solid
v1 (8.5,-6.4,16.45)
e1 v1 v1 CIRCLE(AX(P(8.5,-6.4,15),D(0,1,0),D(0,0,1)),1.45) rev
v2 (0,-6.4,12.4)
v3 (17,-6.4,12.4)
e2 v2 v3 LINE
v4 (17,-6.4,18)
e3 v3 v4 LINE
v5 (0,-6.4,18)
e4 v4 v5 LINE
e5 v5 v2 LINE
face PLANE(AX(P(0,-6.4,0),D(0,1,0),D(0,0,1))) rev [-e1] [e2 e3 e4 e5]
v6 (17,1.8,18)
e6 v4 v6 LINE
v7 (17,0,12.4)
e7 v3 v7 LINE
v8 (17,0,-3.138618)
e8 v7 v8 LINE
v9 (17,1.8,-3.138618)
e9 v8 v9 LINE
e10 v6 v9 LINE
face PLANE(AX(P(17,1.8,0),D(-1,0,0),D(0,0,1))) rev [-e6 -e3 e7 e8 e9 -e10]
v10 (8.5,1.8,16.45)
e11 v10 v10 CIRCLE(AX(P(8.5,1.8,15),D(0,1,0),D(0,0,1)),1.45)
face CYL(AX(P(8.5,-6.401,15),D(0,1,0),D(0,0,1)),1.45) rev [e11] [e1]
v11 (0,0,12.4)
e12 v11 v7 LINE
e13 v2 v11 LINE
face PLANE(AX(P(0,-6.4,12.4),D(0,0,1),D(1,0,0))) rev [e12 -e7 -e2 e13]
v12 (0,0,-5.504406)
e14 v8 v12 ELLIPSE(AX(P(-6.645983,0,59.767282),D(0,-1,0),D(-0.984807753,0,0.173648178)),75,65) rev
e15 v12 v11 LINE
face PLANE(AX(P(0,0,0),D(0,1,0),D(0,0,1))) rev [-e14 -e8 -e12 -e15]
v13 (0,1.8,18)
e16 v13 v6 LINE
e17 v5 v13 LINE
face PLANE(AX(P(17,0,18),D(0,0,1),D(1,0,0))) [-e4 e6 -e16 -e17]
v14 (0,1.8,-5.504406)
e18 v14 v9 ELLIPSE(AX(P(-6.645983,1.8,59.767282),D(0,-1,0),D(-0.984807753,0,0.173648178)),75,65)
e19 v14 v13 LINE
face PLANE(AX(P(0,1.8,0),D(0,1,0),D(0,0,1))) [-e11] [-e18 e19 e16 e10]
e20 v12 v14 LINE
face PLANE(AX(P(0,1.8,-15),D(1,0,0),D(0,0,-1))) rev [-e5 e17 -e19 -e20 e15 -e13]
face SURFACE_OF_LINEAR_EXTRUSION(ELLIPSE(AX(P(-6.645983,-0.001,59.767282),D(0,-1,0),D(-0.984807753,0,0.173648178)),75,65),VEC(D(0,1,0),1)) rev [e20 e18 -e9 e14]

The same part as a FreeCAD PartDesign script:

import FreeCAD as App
import Part
import Sketcher

V = App.Vector
Q = App.Units.Quantity


def add_polygon(sketch, points):
    """Adds a closed chain of lines whose ends are joined by coincident constraints."""
    first, n = sketch.GeometryCount, len(points)
    for a, b in zip(points, points[1:] + points[:1]):
        sketch.addGeometry(Part.LineSegment(App.Vector(*a, 0), App.Vector(*b, 0)), False)
    for i in range(n):
        sketch.addConstraint(Sketcher.Constraint("Coincident", first + i, 2, first + (i + 1) % n, 1))

doc = App.newDocument("Part")
body = doc.addObject("PartDesign::Body", "Body")

sketch1 = body.newObject("Sketcher::SketchObject", "Sketch")
sketch1.AttachmentSupport = (doc.getObject("XZ_Plane"), [""])
sketch1.MapMode = "FlatFace"
add_polygon(sketch1, [(0, -15), (0, 0), (17, 0), (17, -10)])
sketch1.addConstraint(Sketcher.Constraint("Vertical", 0))
sketch1.addConstraint(Sketcher.Constraint("Horizontal", 1))
sketch1.addConstraint(Sketcher.Constraint("Vertical", 2))
sketch1.addConstraint(Sketcher.Constraint("Coincident", 0, 2, -1, 1))
sketch1.addConstraint(Sketcher.Constraint("DistanceX", 1, 1, 1, 2, Q("17 mm")))
sketch1.addConstraint(Sketcher.Constraint("DistanceY", 0, 1, 0, 2, Q("15 mm")))
sketch1.addConstraint(Sketcher.Constraint("DistanceY", 2, 2, 2, 1, Q("10 mm")))
pad1 = body.newObject("PartDesign::Pad", "Pad")
pad1.Profile = sketch1
pad1.Length = 1.8
pad1.Reversed = True

sketch2 = body.newObject("Sketcher::SketchObject", "Sketch001")
sketch2.AttachmentSupport = (doc.getObject("XZ_Plane"), [""])
sketch2.MapMode = "FlatFace"
sketch2.AttachmentOffset = App.Placement(V(0, 0, -1.8), App.Rotation())
sketch2.addGeometry(Part.LineSegment(V(0, -15, 0), V(0, -5.504406, 0)), False)
sketch2.addGeometry(Part.BSplineCurve([V(17, -3.138618, 0), V(8.707332, -5.198818, 0), V(0, -5.504406, 0)], [3, 3], [4.238740022, 4.471680234], False, 2, [1, 0.993225021, 1], False), False)
sketch2.addGeometry(Part.LineSegment(V(17, -3.138618, 0), V(17, -10, 0)), False)
sketch2.addGeometry(Part.LineSegment(V(17, -10, 0), V(0, -15, 0)), False)
sketch2.addConstraint(Sketcher.Constraint("Block", 1))
sketch2.addConstraint(Sketcher.Constraint("Coincident", 0, 2, 1, 2))
sketch2.addConstraint(Sketcher.Constraint("Coincident", 1, 1, 2, 1))
sketch2.addConstraint(Sketcher.Constraint("Coincident", 2, 2, 3, 1))
sketch2.addConstraint(Sketcher.Constraint("Coincident", 3, 2, 0, 1))
sketch2.addConstraint(Sketcher.Constraint("Vertical", 0))
sketch2.addConstraint(Sketcher.Constraint("Vertical", 2))
sketch2.addConstraint(Sketcher.Constraint("DistanceY", 2, 2, -1, 1, Q("10 mm")))
sketch2.addConstraint(Sketcher.Constraint("DistanceY", 3, 2, -1, 1, Q("15 mm")))
pocket1 = body.newObject("PartDesign::Pocket", "Pocket")
pocket1.Profile = sketch2
pocket1.Type = "UpToFirst"
pocket1.Reversed = True

sketch3 = body.newObject("Sketcher::SketchObject", "Sketch002")
sketch3.AttachmentSupport = (doc.getObject("XZ_Plane"), [""])
sketch3.MapMode = "FlatFace"
sketch3.AttachmentOffset = App.Placement(V(0, 0, -1.8), App.Rotation())
add_polygon(sketch3, [(17, 18), (17, 0), (0, 0), (0, 18)])
sketch3.addConstraint(Sketcher.Constraint("Vertical", 0))
sketch3.addConstraint(Sketcher.Constraint("Horizontal", 1))
sketch3.addConstraint(Sketcher.Constraint("Vertical", 2))
sketch3.addConstraint(Sketcher.Constraint("Horizontal", 3))
sketch3.addConstraint(Sketcher.Constraint("Coincident", 1, 2, -1, 1))
sketch3.addConstraint(Sketcher.Constraint("DistanceX", 1, 2, 1, 1, Q("17 mm")))
sketch3.addConstraint(Sketcher.Constraint("DistanceY", 0, 2, 0, 1, Q("18 mm")))
pad2 = body.newObject("PartDesign::Pad", "Pad001")
pad2.Profile = sketch3
pad2.Length = 1.8

sketch4 = body.newObject("Sketcher::SketchObject", "Sketch003")
sketch4.AttachmentSupport = (doc.getObject("XZ_Plane"), [""])
sketch4.MapMode = "FlatFace"
add_polygon(sketch4, [(17, 18), (0, 18), (0, 12), (17, 12)])
sketch4.addConstraint(Sketcher.Constraint("Horizontal", 0))
sketch4.addConstraint(Sketcher.Constraint("Vertical", 1))
sketch4.addConstraint(Sketcher.Constraint("Horizontal", 2))
sketch4.addConstraint(Sketcher.Constraint("Vertical", 3))
sketch4.addConstraint(Sketcher.Constraint("PointOnObject", 0, 2, -2))
sketch4.addConstraint(Sketcher.Constraint("DistanceX", 0, 2, 0, 1, Q("17 mm")))
sketch4.addConstraint(Sketcher.Constraint("DistanceY", 1, 2, 1, 1, Q("5.6 mm")))
sketch4.addConstraint(Sketcher.Constraint("DistanceY", -1, 1, 0, 2, Q("18 mm")))
pad3 = body.newObject("PartDesign::Pad", "Pad002")
pad3.Profile = sketch4
pad3.Length = 6.4

sketch5 = body.newObject("Sketcher::SketchObject", "Sketch004")
sketch5.AttachmentSupport = (doc.getObject("XZ_Plane"), [""])
sketch5.MapMode = "FlatFace"
sketch5.AttachmentOffset = App.Placement(V(0, 0, -1.8), App.Rotation())
sketch5.addGeometry(Part.Circle(V(8.5, 15, 0), V(0, 0, 1), 1.4), False)
sketch5.addConstraint(Sketcher.Constraint("Diameter", 0, Q("2.9 mm")))
sketch5.addConstraint(Sketcher.Constraint("DistanceY", -1, 1, 0, 3, Q("15 mm")))
sketch5.addConstraint(Sketcher.Constraint("DistanceX", -1, 1, 0, 3, Q("8.5 mm")))
pocket2 = body.newObject("PartDesign::Pocket", "Pocket001")
pocket2.Profile = sketch5
pocket2.Type = "UpToFirst"
pocket2.Reversed = True

doc.recompute()
